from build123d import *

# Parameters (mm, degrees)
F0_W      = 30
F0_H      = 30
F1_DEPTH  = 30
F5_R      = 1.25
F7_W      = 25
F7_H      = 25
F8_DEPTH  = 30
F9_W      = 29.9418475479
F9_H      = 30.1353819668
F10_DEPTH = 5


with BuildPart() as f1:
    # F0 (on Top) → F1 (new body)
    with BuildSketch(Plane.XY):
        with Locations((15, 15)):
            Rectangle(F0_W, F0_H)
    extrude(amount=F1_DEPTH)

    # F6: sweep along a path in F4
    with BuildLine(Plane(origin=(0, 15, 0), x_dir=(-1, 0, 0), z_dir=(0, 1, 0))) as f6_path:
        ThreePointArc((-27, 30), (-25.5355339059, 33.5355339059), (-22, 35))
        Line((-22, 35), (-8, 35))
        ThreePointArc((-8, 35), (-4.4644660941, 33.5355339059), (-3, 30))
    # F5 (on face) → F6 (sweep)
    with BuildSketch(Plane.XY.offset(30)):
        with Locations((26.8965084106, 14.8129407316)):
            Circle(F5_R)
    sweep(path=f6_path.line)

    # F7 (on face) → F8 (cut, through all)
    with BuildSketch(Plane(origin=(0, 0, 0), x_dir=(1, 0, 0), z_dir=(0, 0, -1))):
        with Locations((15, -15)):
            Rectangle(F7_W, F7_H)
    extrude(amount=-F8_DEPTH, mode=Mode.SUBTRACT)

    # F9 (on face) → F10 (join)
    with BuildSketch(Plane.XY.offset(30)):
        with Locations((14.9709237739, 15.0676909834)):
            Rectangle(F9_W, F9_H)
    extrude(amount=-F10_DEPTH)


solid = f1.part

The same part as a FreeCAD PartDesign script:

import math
import FreeCAD as App
import Part
import Sketcher

V = App.Vector


def add_polygon(sketch, points):
    """Adds a closed chain of lines whose ends are joined by coincident constraints."""
    first, n = sketch.GeometryCount, len(points)
    for a, b in zip(points, points[1:] + points[:1]):
        sketch.addGeometry(Part.LineSegment(App.Vector(*a, 0), App.Vector(*b, 0)), False)
    for i in range(n):
        sketch.addConstraint(Sketcher.Constraint("Coincident", first + i, 2, first + (i + 1) % n, 1))

doc = App.newDocument("Part")
params = doc.addObject("Spreadsheet::Sheet", "Params")
for row, (alias, value) in enumerate([
    ("sketch1_width", "30 mm"),
    ("pad1_length", "30 mm"),
    ("sketch2_diameter", "2.5 mm"),
    ("sketch3_radius", "5 mm"),
    ("sketch3_width", "14 mm"),
    ("sketch4_width", "25 mm"),
    ("pocket1_length", "30 mm"),
    ("pad2_length", "5 mm"),
], start=1):
    params.set(f"A{row}", alias)
    params.set(f"B{row}", "=" + value)
    params.setAlias(f"B{row}", alias)

body = doc.addObject("PartDesign::Body", "Body")

# Sketch on XY plane
sketch1 = doc.addObject("Sketcher::SketchObject", "Sketch")
body.addObject(sketch1)
sketch1.AttachmentSupport = (doc.XY_Plane, [""])
sketch1.MapMode = "FlatFace"
add_polygon(sketch1, [(0, 30), (0, 0), (30, 0), (30, 30)])  # lines 0-3
sketch1.addConstraint([
    Sketcher.Constraint("Vertical", 0),
    Sketcher.Constraint("Horizontal", 1),
    Sketcher.Constraint("Vertical", 2),
    Sketcher.Constraint("Horizontal", 3),
    Sketcher.Constraint("Coincident", 0, 2, -1, 1),
    Sketcher.Constraint("Equal", 3, 0),
    Sketcher.Constraint("DistanceX", 1, 1, 1, 2, 30.0),
])
sketch1.setExpression("Constraints[10]", "Params.sketch1_width")
pad1 = doc.addObject("PartDesign::Pad", "Pad")
body.addObject(pad1)
pad1.Profile = sketch1
pad1.setExpression("Length", "Params.pad1_length")

# Sketch on XY plane
sketch2 = doc.addObject("Sketcher::SketchObject", "Sketch001")
body.addObject(sketch2)
sketch2.AttachmentSupport = (doc.XY_Plane, [""])
sketch2.MapMode = "FlatFace"
sketch2.AttachmentOffset = App.Placement(V(0, 0, 30), App.Rotation())
sketch2.addGeometry(Part.Circle(V(26.9, 14.8, 0), V(0, 0, 1), 1.2), False)
sketch2.addConstraint([
    Sketcher.Constraint("Diameter", 0, 2.5),
    Sketcher.Constraint("DistanceX", -1, 1, 0, 3, 26.896508),
    Sketcher.Constraint("DistanceY", -1, 1, 0, 3, 14.812941),
])
sketch2.setExpression("Constraints[0]", "Params.sketch2_diameter")

# Sketch on XZ plane
sketch3 = doc.addObject("Sketcher::SketchObject", "Sketch002")
body.addObject(sketch3)
sketch3.AttachmentSupport = (doc.XZ_Plane, [""])
sketch3.MapMode = "FlatFace"
sketch3.AttachmentOffset = App.Placement(V(0, 0, -15), App.Rotation())
sketch3.addGeometry([
    Part.ArcOfCircle(Part.Circle(V(22, 30, 0), V(0, 0, 1), 5), math.radians(0), math.radians(90)),
    Part.LineSegment(V(22, 35, 0), V(8, 35, 0)),
    Part.ArcOfCircle(Part.Circle(V(8, 30, 0), V(0, 0, 1), 5), math.radians(90), math.radians(180)),
], False)
sketch3.addConstraint([
    Sketcher.Constraint("Tangent", 0, 2, 1, 1),
    Sketcher.Constraint("Tangent", 1, 2, 2, 1),
    Sketcher.Constraint("Horizontal", 1),
    Sketcher.Constraint("Equal", 0, 2),
    Sketcher.Constraint("Horizontal", 2, 3, 0, 1),
    Sketcher.Constraint("Horizontal", 0, 1, 2, 2),
    Sketcher.Constraint("Radius", 0, 5.0),
    Sketcher.Constraint("DistanceX", 1, 2, 1, 1, 14.0),
    Sketcher.Constraint("DistanceX", -1, 1, 0, 3, 22.0),
    Sketcher.Constraint("DistanceY", -1, 1, 0, 3, 30.0),
])
sketch3.setExpression("Constraints[6]", "Params.sketch3_radius")
sketch3.setExpression("Constraints[7]", "Params.sketch3_width")
doc.recompute()

additivepipe = doc.addObject("PartDesign::AdditivePipe", "AdditivePipe")
body.addObject(additivepipe)
additivepipe.Profile = sketch2
additivepipe.Spine = (sketch3, ["Edge1", "Edge2", "Edge3"])

# Sketch on XY plane
sketch4 = doc.addObject("Sketcher::SketchObject", "Sketch003")
body.addObject(sketch4)
sketch4.AttachmentSupport = (doc.XY_Plane, [""])
sketch4.MapMode = "FlatFace"
add_polygon(sketch4, [(2, 2), (2, 28), (28, 28), (28, 2)])  # lines 0-3
sketch4.addConstraint([
    Sketcher.Constraint("Vertical", 0),
    Sketcher.Constraint("Horizontal", 1),
    Sketcher.Constraint("Vertical", 2),
    Sketcher.Constraint("Horizontal", 3),
    Sketcher.Constraint("Equal", 3, 0),
    Sketcher.Constraint("DistanceX", 1, 1, 1, 2, 25.0),
    Sketcher.Constraint("DistanceX", -1, 1, 0, 2, 2.5),
    Sketcher.Constraint("DistanceY", -1, 1, 0, 2, 27.5),
])
sketch4.setExpression("Constraints[9]", "Params.sketch4_width")
pocket1 = doc.addObject("PartDesign::Pocket", "Pocket")
body.addObject(pocket1)
pocket1.Profile = sketch4
pocket1.setExpression("Length", "Params.pocket1_length")
pocket1.Reversed = True

# Sketch on XY plane
sketch5 = doc.addObject("Sketcher::SketchObject", "Sketch004")
body.addObject(sketch5)
sketch5.AttachmentSupport = (doc.XY_Plane, [""])
sketch5.MapMode = "FlatFace"
sketch5.AttachmentOffset = App.Placement(V(0, 0, 30), App.Rotation())
add_polygon(sketch5, [(0, 30), (0, 0), (30, 0), (30, 30)])  # lines 0-3
sketch5.addConstraint([
    Sketcher.Constraint("Vertical", 0),
    Sketcher.Constraint("Horizontal", 1),
    Sketcher.Constraint("Vertical", 2),
    Sketcher.Constraint("Horizontal", 3),
    Sketcher.Constraint("Coincident", 0, 2, -1, 1),
    Sketcher.Constraint("DistanceY", 0, 2, 0, 1, 30.135382),
    Sketcher.Constraint("DistanceX", 1, 1, 1, 2, 29.941848),
])
pad2 = doc.addObject("PartDesign::Pad", "Pad001")
body.addObject(pad2)
pad2.Profile = sketch5
pad2.setExpression("Length", "Params.pad2_length")
pad2.Reversed = True

doc.recompute()
